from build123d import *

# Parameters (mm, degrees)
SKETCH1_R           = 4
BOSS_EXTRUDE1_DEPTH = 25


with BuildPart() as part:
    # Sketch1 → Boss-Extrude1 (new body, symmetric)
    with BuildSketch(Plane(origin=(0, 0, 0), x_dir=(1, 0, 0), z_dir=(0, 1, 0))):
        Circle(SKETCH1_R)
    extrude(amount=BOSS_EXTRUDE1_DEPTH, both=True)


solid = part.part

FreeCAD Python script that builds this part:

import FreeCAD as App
import Part
import Sketcher
from FreeCAD import Vector
Q = App.Units.Quantity

doc = App.newDocument("Part")
body = doc.addObject("PartDesign::Body", "Body")

sketch1 = doc.addObject("Sketcher::SketchObject", "Sketch")
body.addObject(sketch1)
sketch1.AttachmentSupport = (doc.XZ_Plane, [""])
sketch1.MapMode = "FlatFace"
sketch1.addGeometry(Part.Circle(Vector(0, 0, 0), Vector(0, 0, 1), 4), False)
sketch1.addConstraint([
    Sketcher.Constraint("Coincident", 0, 3, -1, 1),
    Sketcher.Constraint("Diameter", 0, Q("8 mm")),
])
pad1 = doc.addObject("PartDesign::Pad", "Pad")
body.addObject(pad1)
pad1.Profile = sketch1
pad1.Length = 50
pad1.Midplane = True

doc.recompute()
